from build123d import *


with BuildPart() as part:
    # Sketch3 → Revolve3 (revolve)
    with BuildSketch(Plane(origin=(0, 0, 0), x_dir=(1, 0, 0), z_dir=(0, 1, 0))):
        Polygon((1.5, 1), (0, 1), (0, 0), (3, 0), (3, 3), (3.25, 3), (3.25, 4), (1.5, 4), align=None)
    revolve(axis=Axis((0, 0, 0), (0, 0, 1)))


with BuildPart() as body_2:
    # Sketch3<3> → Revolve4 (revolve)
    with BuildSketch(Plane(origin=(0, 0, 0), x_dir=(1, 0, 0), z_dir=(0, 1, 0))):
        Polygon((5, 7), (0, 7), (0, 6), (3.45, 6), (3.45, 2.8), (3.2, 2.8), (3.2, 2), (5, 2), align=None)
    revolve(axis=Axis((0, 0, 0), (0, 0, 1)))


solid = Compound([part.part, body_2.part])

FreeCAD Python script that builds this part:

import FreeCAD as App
import Part
import Sketcher
from FreeCAD import Vector
Q = App.Units.Quantity

doc = App.newDocument("Part")
params = doc.addObject("Spreadsheet::Sheet", "Params")
for row, (alias, value) in enumerate([
    ("sketch1_width", "3 mm"),
    ("sketch1_height", "1 mm"),
    ("sketch1_width2", "1.5 mm"),
    ("sketch1_width3", "0.25 mm"),
    ("revolution_angle", "360 deg"),
    ("sketch2_width", "5 mm"),
    ("sketch2_height", "1 mm"),
    ("sketch2_width2", "1.8 mm"),
    ("sketch2_height2", "3.2 mm"),
    ("sketch2_width3", "3.45 mm"),
    ("revolution2_angle", "360 deg"),
], start=1):
    params.set(f"A{row}", alias)
    params.set(f"B{row}", "=" + value)
    params.setAlias(f"B{row}", alias)

body = doc.addObject("PartDesign::Body", "Body")

# Sketch on XZ plane
sketch1 = doc.addObject("Sketcher::SketchObject", "Sketch")
body.addObject(sketch1)
sketch1.AttachmentSupport = (doc.XZ_Plane, [""])
sketch1.MapMode = "FlatFace"
sketch1.addGeometry(Part.LineSegment(Vector(1.5, -1, 0), Vector(0, -1, 0)), False)
sketch1.addGeometry(Part.LineSegment(Vector(0, -1, 0), Vector(0, 0, 0)), False)
sketch1.addGeometry(Part.LineSegment(Vector(0, 0, 0), Vector(3, 0, 0)), False)
sketch1.addGeometry(Part.LineSegment(Vector(3, 0, 0), Vector(3, -3, 0)), False)
sketch1.addGeometry(Part.LineSegment(Vector(3, -3, 0), Vector(3.25, -3, 0)), False)
sketch1.addGeometry(Part.LineSegment(Vector(3.25, -3, 0), Vector(3.25, -4, 0)), False)
sketch1.addGeometry(Part.LineSegment(Vector(3.25, -4, 0), Vector(1.5, -4, 0)), False)
sketch1.addGeometry(Part.LineSegment(Vector(1.5, -4, 0), Vector(1.5, -1, 0)), False)
sketch1.addConstraint(Sketcher.Constraint("Coincident", 0, 2, 1, 1))
sketch1.addConstraint(Sketcher.Constraint("Coincident", 1, 2, 2, 1))
sketch1.addConstraint(Sketcher.Constraint("Coincident", 2, 2, 3, 1))
sketch1.addConstraint(Sketcher.Constraint("Coincident", 3, 2, 4, 1))
sketch1.addConstraint(Sketcher.Constraint("Coincident", 4, 2, 5, 1))
sketch1.addConstraint(Sketcher.Constraint("Coincident", 5, 2, 6, 1))
sketch1.addConstraint(Sketcher.Constraint("Coincident", 6, 2, 7, 1))
sketch1.addConstraint(Sketcher.Constraint("Coincident", 7, 2, 0, 1))
sketch1.addConstraint(Sketcher.Constraint("Horizontal", 0))
sketch1.addConstraint(Sketcher.Constraint("Vertical", 1))
sketch1.addConstraint(Sketcher.Constraint("Horizontal", 2))
sketch1.addConstraint(Sketcher.Constraint("Vertical", 3))
sketch1.addConstraint(Sketcher.Constraint("Horizontal", 4))
sketch1.addConstraint(Sketcher.Constraint("Vertical", 5))
sketch1.addConstraint(Sketcher.Constraint("Horizontal", 6))
sketch1.addConstraint(Sketcher.Constraint("Vertical", 7))
sketch1.addConstraint(Sketcher.Constraint("Coincident", 1, 2, -1, 1))
sketch1.addConstraint(Sketcher.Constraint("Equal", 2, 3))
sketch1.addConstraint(Sketcher.Constraint("Equal", 1, 5))
sketch1.addConstraint(Sketcher.Constraint("DistanceX", 2, 1, 2, 2, Q("3 mm")))
sketch1.addConstraint(Sketcher.Constraint("DistanceY", 1, 1, 1, 2, Q("1 mm")))
sketch1.addConstraint(Sketcher.Constraint("DistanceX", 0, 2, 0, 1, Q("1.5 mm")))
sketch1.addConstraint(Sketcher.Constraint("DistanceX", 4, 1, 4, 2, Q("0.25 mm")))
sketch1.setExpression("Constraints[19]", "Params.sketch1_width")
sketch1.setExpression("Constraints[20]", "Params.sketch1_height")
sketch1.setExpression("Constraints[21]", "Params.sketch1_width2")
sketch1.setExpression("Constraints[22]", "Params.sketch1_width3")
revolution = doc.addObject("PartDesign::Revolution", "Revolution")
body.addObject(revolution)
revolution.Profile = sketch1
revolution.ReferenceAxis = (sketch1, ["V_Axis"])
revolution.setExpression("Angle", "Params.revolution_angle")
body2 = doc.addObject("PartDesign::Body", "Body001")

# Sketch on XZ plane
sketch2 = doc.addObject("Sketcher::SketchObject", "Sketch001")
body2.addObject(sketch2)
sketch2.AttachmentSupport = (doc.getObject("XZ_Plane001"), [""])
sketch2.MapMode = "FlatFace"
sketch2.addGeometry(Part.LineSegment(Vector(5, -7, 0), Vector(0, -7, 0)), False)
sketch2.addGeometry(Part.LineSegment(Vector(0, -7, 0), Vector(0, -6, 0)), False)
sketch2.addGeometry(Part.LineSegment(Vector(0, -6, 0), Vector(3.45, -6, 0)), False)
sketch2.addGeometry(Part.LineSegment(Vector(3.45, -6, 0), Vector(3.45, -2.8, 0)), False)
sketch2.addGeometry(Part.LineSegment(Vector(3.45, -2.8, 0), Vector(3.2, -2.8, 0)), False)
sketch2.addGeometry(Part.LineSegment(Vector(3.2, -2.8, 0), Vector(3.2, -2, 0)), False)
sketch2.addGeometry(Part.LineSegment(Vector(3.2, -2, 0), Vector(5, -2, 0)), False)
sketch2.addGeometry(Part.LineSegment(Vector(5, -2, 0), Vector(5, -7, 0)), False)
sketch2.addConstraint(Sketcher.Constraint("Coincident", 0, 2, 1, 1))
sketch2.addConstraint(Sketcher.Constraint("Coincident", 1, 2, 2, 1))
sketch2.addConstraint(Sketcher.Constraint("Coincident", 2, 2, 3, 1))
sketch2.addConstraint(Sketcher.Constraint("Coincident", 3, 2, 4, 1))
sketch2.addConstraint(Sketcher.Constraint("Coincident", 4, 2, 5, 1))
sketch2.addConstraint(Sketcher.Constraint("Coincident", 5, 2, 6, 1))
sketch2.addConstraint(Sketcher.Constraint("Coincident", 6, 2, 7, 1))
sketch2.addConstraint(Sketcher.Constraint("Coincident", 7, 2, 0, 1))
sketch2.addConstraint(Sketcher.Constraint("Horizontal", 0))
sketch2.addConstraint(Sketcher.Constraint("Vertical", 1))
sketch2.addConstraint(Sketcher.Constraint("Horizontal", 2))
sketch2.addConstraint(Sketcher.Constraint("Vertical", 3))
sketch2.addConstraint(Sketcher.Constraint("Horizontal", 4))
sketch2.addConstraint(Sketcher.Constraint("Vertical", 5))
sketch2.addConstraint(Sketcher.Constraint("Horizontal", 6))
sketch2.addConstraint(Sketcher.Constraint("Vertical", 7))
sketch2.addConstraint(Sketcher.Constraint("PointOnObject", 0, 2, -2))
sketch2.addConstraint(Sketcher.Constraint("Equal", 0, 7))
sketch2.addConstraint(Sketcher.Constraint("DistanceX", 0, 2, 0, 1, Q("5 mm")))
sketch2.addConstraint(Sketcher.Constraint("DistanceY", 1, 1, 1, 2, Q("1 mm")))
sketch2.addConstraint(Sketcher.Constraint("DistanceX", 6, 1, 6, 2, Q("1.8 mm")))
sketch2.addConstraint(Sketcher.Constraint("DistanceY", 3, 1, 3, 2, Q("3.2 mm")))
sketch2.addConstraint(Sketcher.Constraint("DistanceY", 0, 2, -1, 1, Q("7 mm")))
sketch2.addConstraint(Sketcher.Constraint("DistanceX", 2, 1, 2, 2, Q("3.45 mm")))
sketch2.setExpression("Constraints[18]", "Params.sketch2_width")
sketch2.setExpression("Constraints[19]", "Params.sketch2_height")
sketch2.setExpression("Constraints[20]", "Params.sketch2_width2")
sketch2.setExpression("Constraints[21]", "Params.sketch2_height2")
sketch2.setExpression("Constraints[23]", "Params.sketch2_width3")
revolution2 = doc.addObject("PartDesign::Revolution", "Revolution001")
body2.addObject(revolution2)
revolution2.Profile = sketch2
revolution2.ReferenceAxis = (sketch2, ["V_Axis"])
revolution2.setExpression("Angle", "Params.revolution2_angle")

doc.recompute()
